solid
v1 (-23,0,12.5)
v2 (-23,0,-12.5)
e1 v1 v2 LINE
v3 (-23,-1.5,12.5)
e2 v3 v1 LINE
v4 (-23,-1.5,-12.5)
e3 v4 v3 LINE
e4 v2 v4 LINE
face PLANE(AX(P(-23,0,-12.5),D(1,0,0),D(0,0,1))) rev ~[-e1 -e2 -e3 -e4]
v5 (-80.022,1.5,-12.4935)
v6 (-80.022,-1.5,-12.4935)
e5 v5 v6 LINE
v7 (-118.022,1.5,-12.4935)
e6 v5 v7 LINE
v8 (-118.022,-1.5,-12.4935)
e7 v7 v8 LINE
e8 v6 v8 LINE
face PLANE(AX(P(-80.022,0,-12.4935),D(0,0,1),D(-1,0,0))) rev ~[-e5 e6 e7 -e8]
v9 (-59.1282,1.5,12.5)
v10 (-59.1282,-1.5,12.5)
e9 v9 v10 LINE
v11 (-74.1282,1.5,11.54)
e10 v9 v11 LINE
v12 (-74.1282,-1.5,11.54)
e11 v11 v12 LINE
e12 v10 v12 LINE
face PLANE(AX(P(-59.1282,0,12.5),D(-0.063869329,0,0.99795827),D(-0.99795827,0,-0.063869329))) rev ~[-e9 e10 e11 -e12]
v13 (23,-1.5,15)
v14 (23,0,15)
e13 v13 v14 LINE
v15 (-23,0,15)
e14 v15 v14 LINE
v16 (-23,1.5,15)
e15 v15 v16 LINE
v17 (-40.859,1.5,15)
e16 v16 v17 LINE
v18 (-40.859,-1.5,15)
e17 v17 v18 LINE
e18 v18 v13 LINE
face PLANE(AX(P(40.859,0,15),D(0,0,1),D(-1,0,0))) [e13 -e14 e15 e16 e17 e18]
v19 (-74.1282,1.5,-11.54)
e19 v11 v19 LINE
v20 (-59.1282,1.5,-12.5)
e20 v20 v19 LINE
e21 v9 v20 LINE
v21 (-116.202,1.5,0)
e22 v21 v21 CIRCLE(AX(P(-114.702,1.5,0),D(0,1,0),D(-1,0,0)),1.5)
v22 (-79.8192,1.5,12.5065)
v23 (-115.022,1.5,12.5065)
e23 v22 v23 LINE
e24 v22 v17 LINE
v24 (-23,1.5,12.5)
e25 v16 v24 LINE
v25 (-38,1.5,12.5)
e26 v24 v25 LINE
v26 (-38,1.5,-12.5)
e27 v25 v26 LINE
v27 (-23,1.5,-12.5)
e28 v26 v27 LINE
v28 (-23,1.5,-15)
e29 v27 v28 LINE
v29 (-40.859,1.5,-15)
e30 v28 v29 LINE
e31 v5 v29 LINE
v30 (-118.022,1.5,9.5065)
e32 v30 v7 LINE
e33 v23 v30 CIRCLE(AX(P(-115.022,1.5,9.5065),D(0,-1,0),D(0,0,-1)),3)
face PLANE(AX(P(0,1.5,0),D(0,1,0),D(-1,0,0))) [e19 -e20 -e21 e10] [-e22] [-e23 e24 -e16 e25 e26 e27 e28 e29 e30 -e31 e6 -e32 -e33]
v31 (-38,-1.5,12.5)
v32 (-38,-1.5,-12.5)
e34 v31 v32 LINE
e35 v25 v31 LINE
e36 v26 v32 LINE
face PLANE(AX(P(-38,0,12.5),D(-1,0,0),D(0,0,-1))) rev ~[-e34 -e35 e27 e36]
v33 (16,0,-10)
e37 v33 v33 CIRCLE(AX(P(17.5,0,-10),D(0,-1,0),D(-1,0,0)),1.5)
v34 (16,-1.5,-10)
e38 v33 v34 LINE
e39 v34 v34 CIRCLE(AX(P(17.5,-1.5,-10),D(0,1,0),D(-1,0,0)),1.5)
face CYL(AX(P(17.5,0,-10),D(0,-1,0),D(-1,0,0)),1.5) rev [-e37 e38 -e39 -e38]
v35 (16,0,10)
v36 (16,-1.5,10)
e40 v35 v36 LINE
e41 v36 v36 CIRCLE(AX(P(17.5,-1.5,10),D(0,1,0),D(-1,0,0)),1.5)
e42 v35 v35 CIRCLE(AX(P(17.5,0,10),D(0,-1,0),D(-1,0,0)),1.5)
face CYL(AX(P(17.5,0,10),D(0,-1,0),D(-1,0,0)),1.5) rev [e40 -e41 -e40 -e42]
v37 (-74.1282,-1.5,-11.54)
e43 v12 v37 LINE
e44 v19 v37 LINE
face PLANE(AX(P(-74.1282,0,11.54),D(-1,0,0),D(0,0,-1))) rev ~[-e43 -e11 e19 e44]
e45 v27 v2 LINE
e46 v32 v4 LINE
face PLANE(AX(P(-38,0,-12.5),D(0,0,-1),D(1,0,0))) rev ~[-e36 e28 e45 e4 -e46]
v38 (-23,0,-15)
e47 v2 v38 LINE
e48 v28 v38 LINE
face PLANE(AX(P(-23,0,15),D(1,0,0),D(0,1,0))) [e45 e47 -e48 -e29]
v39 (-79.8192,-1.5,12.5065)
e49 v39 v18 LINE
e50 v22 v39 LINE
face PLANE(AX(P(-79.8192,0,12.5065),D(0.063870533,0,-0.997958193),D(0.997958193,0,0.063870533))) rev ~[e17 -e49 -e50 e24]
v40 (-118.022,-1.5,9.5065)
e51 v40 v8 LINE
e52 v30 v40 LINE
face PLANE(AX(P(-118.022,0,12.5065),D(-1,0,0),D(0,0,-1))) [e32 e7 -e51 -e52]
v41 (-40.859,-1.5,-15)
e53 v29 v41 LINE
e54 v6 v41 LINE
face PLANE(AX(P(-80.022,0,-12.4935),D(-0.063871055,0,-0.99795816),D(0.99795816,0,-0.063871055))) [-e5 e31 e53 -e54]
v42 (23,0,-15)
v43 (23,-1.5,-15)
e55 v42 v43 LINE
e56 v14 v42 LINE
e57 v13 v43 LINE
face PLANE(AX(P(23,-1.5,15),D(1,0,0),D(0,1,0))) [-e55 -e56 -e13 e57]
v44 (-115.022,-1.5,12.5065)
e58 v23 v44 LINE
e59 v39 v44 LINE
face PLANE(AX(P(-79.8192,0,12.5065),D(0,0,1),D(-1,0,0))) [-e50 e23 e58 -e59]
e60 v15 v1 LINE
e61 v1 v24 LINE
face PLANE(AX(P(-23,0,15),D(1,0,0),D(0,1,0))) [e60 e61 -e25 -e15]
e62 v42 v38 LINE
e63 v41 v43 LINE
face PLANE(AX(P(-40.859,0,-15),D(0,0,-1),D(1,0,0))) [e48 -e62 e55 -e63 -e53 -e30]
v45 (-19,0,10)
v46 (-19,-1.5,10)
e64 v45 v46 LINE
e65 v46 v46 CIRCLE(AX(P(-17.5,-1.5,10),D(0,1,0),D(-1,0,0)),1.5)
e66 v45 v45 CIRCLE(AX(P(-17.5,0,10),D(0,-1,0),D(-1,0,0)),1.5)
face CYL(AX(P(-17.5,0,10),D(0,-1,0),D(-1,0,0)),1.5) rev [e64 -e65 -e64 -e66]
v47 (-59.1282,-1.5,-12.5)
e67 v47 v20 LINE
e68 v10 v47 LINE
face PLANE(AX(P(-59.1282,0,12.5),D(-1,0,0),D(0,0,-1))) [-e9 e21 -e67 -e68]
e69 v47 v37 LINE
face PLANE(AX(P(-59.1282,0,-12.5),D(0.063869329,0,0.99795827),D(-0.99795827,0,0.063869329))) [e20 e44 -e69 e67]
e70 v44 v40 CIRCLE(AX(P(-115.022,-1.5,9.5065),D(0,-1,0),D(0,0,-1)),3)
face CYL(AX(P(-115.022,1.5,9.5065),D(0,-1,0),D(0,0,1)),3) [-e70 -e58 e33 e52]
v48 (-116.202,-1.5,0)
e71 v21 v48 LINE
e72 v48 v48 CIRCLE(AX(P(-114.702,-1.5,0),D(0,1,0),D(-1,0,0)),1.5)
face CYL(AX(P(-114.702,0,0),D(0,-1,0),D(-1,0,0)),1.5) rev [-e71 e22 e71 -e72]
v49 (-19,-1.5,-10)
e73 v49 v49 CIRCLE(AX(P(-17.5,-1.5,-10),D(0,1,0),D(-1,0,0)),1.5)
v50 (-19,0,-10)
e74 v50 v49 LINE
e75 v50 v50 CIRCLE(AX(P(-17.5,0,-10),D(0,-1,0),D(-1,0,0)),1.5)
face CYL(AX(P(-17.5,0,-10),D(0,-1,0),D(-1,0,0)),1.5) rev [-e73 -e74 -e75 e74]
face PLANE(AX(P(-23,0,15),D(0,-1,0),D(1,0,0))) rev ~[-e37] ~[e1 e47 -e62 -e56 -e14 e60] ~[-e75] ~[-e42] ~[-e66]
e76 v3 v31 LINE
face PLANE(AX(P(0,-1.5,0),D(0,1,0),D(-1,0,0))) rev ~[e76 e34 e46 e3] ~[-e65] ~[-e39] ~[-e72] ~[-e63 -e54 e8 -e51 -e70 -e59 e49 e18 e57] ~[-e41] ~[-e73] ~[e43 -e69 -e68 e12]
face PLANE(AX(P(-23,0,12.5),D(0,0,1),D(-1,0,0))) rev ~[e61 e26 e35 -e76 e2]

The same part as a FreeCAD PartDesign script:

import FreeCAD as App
import Part
import Sketcher
from FreeCAD import Vector


def edges_at(feature, points):
    """Names of the edges that pass closest to the given points."""
    edges = feature.Shape.Edges
    near = lambda p: min(range(len(edges)), key=lambda i: edges[i].distToShape(Part.Vertex(*p))[0])
    return sorted({f"Edge{near(p) + 1}" for p in points})

doc = App.newDocument("Part")
body = doc.addObject("PartDesign::Body", "Body")

sketch1 = body.newObject("Sketcher::SketchObject", "Sketch")
sketch1.AttachmentSupport = (doc.getObject("XZ_Plane"), [""])
sketch1.MapMode = "FlatFace"
sketch1.addGeometry([
    Part.LineSegment(Vector(40.859, 15, 0), Vector(79.8192, 12.5065, 0)),
    Part.LineSegment(Vector(79.8192, 12.5065, 0), Vector(118.022, 12.5065, 0)),
    Part.LineSegment(Vector(118.022, 12.5065, 0), Vector(118.022, -12.4935, 0)),
    Part.LineSegment(Vector(118.022, -12.4935, 0), Vector(80.022, -12.4935, 0)),
    Part.LineSegment(Vector(80.022, -12.4935, 0), Vector(40.859, -15, 0)),
    Part.LineSegment(Vector(40.859, -15, 0), Vector(-40.859, -15, 0)),
    Part.LineSegment(Vector(-40.859, -15, 0), Vector(-80.022, -12.4935, 0)),
    Part.LineSegment(Vector(-80.022, -12.4935, 0), Vector(-118.022, -12.4935, 0)),
    Part.LineSegment(Vector(-118.022, -12.4935, 0), Vector(-118.022, 12.5065, 0)),
    Part.LineSegment(Vector(-118.022, 12.5065, 0), Vector(-79.8192, 12.5065, 0)),
    Part.LineSegment(Vector(-79.8192, 12.5065, 0), Vector(-40.859, 15, 0)),
    Part.LineSegment(Vector(-40.859, 15, 0), Vector(40.859, 15, 0)),
    Part.Circle(Vector(17.5, -10, 0), Vector(0, 0, 1), 1.5),
    Part.Circle(Vector(-17.5, -10, 0), Vector(0, 0, 1), 1.5),
    Part.Circle(Vector(114.702, 0, 0), Vector(0, 0, 1), 1.5),
    Part.LineSegment(Vector(59.1282, 12.5, 0), Vector(59.1282, -12.5, 0)),
    Part.LineSegment(Vector(59.1282, -12.5, 0), Vector(74.1282, -11.54, 0)),
    Part.LineSegment(Vector(74.1282, -11.54, 0), Vector(74.1282, 11.54, 0)),
    Part.LineSegment(Vector(74.1282, 11.54, 0), Vector(59.1282, 12.5, 0)),
    Part.LineSegment(Vector(38, 12.5, 0), Vector(23, 12.5, 0)),
    Part.LineSegment(Vector(23, 12.5, 0), Vector(23, -12.5, 0)),
    Part.LineSegment(Vector(23, -12.5, 0), Vector(38, -12.5, 0)),
    Part.LineSegment(Vector(38, -12.5, 0), Vector(38, 12.5, 0)),
    Part.Circle(Vector(17.5, 10, 0), Vector(0, 0, 1), 1.5),
    Part.LineSegment(Vector(-23, -12.5, 0), Vector(-23, 12.5, 0)),
    Part.LineSegment(Vector(-23, 12.5, 0), Vector(-38, 12.5, 0)),
    Part.LineSegment(Vector(-38, 12.5, 0), Vector(-38, -12.5, 0)),
    Part.LineSegment(Vector(-38, -12.5, 0), Vector(-23, -12.5, 0)),
    Part.LineSegment(Vector(-74.1282, -11.54, 0), Vector(-59.1282, -12.5, 0)),
    Part.LineSegment(Vector(-59.1282, -12.5, 0), Vector(-59.1282, 12.5, 0)),
    Part.LineSegment(Vector(-59.1282, 12.5, 0), Vector(-74.1282, 11.54, 0)),
    Part.LineSegment(Vector(-74.1282, 11.54, 0), Vector(-74.1282, -11.54, 0)),
    Part.Circle(Vector(-114.702, 0, 0), Vector(0, 0, 1), 1.5),
    Part.Circle(Vector(-17.5, 10, 0), Vector(0, 0, 1), 1.5),
], False)
sketch1.addConstraint([
    Sketcher.Constraint("Coincident", 0, 2, 1, 1),
    Sketcher.Constraint("Coincident", 1, 2, 2, 1),
    Sketcher.Constraint("Coincident", 2, 2, 3, 1),
    Sketcher.Constraint("Coincident", 3, 2, 4, 1),
    Sketcher.Constraint("Coincident", 4, 2, 5, 1),
    Sketcher.Constraint("Coincident", 5, 2, 6, 1),
    Sketcher.Constraint("Coincident", 6, 2, 7, 1),
    Sketcher.Constraint("Coincident", 7, 2, 8, 1),
    Sketcher.Constraint("Coincident", 8, 2, 9, 1),
    Sketcher.Constraint("Coincident", 9, 2, 10, 1),
    Sketcher.Constraint("Coincident", 10, 2, 11, 1),
    Sketcher.Constraint("Coincident", 11, 2, 0, 1),
    Sketcher.Constraint("Coincident", 15, 2, 16, 1),
    Sketcher.Constraint("Coincident", 16, 2, 17, 1),
    Sketcher.Constraint("Coincident", 17, 2, 18, 1),
    Sketcher.Constraint("Coincident", 18, 2, 15, 1),
    Sketcher.Constraint("Coincident", 19, 2, 20, 1),
    Sketcher.Constraint("Coincident", 20, 2, 21, 1),
    Sketcher.Constraint("Coincident", 21, 2, 22, 1),
    Sketcher.Constraint("Coincident", 22, 2, 19, 1),
    Sketcher.Constraint("Coincident", 24, 2, 25, 1),
    Sketcher.Constraint("Coincident", 25, 2, 26, 1),
    Sketcher.Constraint("Coincident", 26, 2, 27, 1),
    Sketcher.Constraint("Coincident", 27, 2, 24, 1),
    Sketcher.Constraint("Coincident", 28, 2, 29, 1),
    Sketcher.Constraint("Coincident", 29, 2, 30, 1),
    Sketcher.Constraint("Coincident", 30, 2, 31, 1),
    Sketcher.Constraint("Coincident", 31, 2, 28, 1),
    Sketcher.Constraint("Horizontal", 1),
    Sketcher.Constraint("Vertical", 2),
    Sketcher.Constraint("Horizontal", 3),
    Sketcher.Constraint("Horizontal", 5),
    Sketcher.Constraint("Horizontal", 7),
    Sketcher.Constraint("Vertical", 8),
    Sketcher.Constraint("Horizontal", 9),
    Sketcher.Constraint("Horizontal", 11),
    Sketcher.Constraint("Vertical", 15),
    Sketcher.Constraint("Vertical", 17),
    Sketcher.Constraint("Horizontal", 19),
    Sketcher.Constraint("Vertical", 20),
    Sketcher.Constraint("Horizontal", 21),
    Sketcher.Constraint("Vertical", 22),
    Sketcher.Constraint("Vertical", 24),
    Sketcher.Constraint("Horizontal", 25),
    Sketcher.Constraint("Vertical", 26),
    Sketcher.Constraint("Horizontal", 27),
    Sketcher.Constraint("Vertical", 29),
    Sketcher.Constraint("Vertical", 31),
    Sketcher.Constraint("Equal", 12, 13),
    Sketcher.Constraint("Equal", 13, 14),
    Sketcher.Constraint("Equal", 14, 23),
    Sketcher.Constraint("Equal", 23, 32),
    Sketcher.Constraint("Equal", 32, 33),
    Sketcher.Constraint("Symmetric", 13, 3, 23, 3, -1, 1),
    Sketcher.Constraint("Symmetric", 14, 3, 32, 3, -1, 1),
    Sketcher.Constraint("Symmetric", 12, 3, 33, 3, -1, 1),
    Sketcher.Constraint("Symmetric", 4, 2, 10, 2, -1, 1),
    Sketcher.Constraint("Symmetric", 20, 2, 24, 2, -1, 1),
    Sketcher.Constraint("Symmetric", 22, 2, 26, 2, -1, 1),
    Sketcher.Constraint("Symmetric", 18, 2, 28, 2, -1, 1),
    Sketcher.Constraint("Symmetric", 16, 2, 30, 2, -1, 1),
    Sketcher.Constraint("Symmetric", 12, 3, 13, 3, -2),
    Sketcher.Constraint("Symmetric", 3, 2, 6, 2, -2),
    Sketcher.Constraint("Symmetric", 1, 2, 8, 2, -2),
    Sketcher.Constraint("PointOnObject", 14, 3, -1),
    Sketcher.Constraint("Parallel", 0, 6),
    Sketcher.Constraint("Parallel", 4, 10),
    Sketcher.Constraint("Parallel", 10, 16),
    Sketcher.Constraint("Parallel", 6, 18),
    Sketcher.Constraint("Parallel", 18, 28),
    Sketcher.Constraint("Parallel", 16, 30),
    Sketcher.Constraint("Horizontal", 18, 2, 19, 2),
    Sketcher.Constraint("Horizontal", 15, 2, 20, 2),
    Sketcher.Constraint("Horizontal", 22, 2, 24, 2),
    Sketcher.Constraint("Horizontal", 17, 2, 30, 2),
    Sketcher.Constraint("Vertical", 4, 2, 11, 2),
    Sketcher.Constraint("Equal", 8, 15),
    Sketcher.Constraint("Diameter", 12, 3.0),
    Sketcher.Constraint("DistanceX", 3, 2, 3, 1, 38.0),
    Sketcher.Constraint("DistanceX", 19, 2, 19, 1, 15.0),
    Sketcher.Constraint("DistanceY", 2, 2, 2, 1, 25.0),
    Sketcher.Constraint("DistanceY", 4, 2, -1, 1, 15.0),
    Sketcher.Constraint("DistanceX", -1, 1, 19, 2, 23.0),
    Sketcher.Constraint("DistanceY", 4, 2, 12, 3, 5.0),
    Sketcher.Constraint("DistanceX", 15, 2, 16, 2, 15.0),
    Sketcher.Constraint("DistanceX", 23, 3, 19, 2, 5.5),
    Sketcher.Constraint("DistanceX", 14, 3, 1, 2, 3.32),
    Sketcher.Constraint("DistanceX", -1, 1, 4, 2, 40.859),
    Sketcher.Constraint("DistanceX", 4, 2, 3, 2, 39.163),
    Sketcher.Constraint("DistanceY", 17, 1, 17, 2, 23.08),
    Sketcher.Constraint("DistanceX", 16, 2, 3, 2, 5.8938),
])
pad1 = body.newObject("PartDesign::Pad", "Pad")
pad1.Profile = sketch1
pad1.Length = 3
pad1.Midplane = True
doc.recompute()

fillet = body.newObject("PartDesign::Fillet", "Fillet")
fillet.Base = (pad1, edges_at(pad1, [(-118.022, 0, 12.507), (118.022, 0, 12.507)]))
fillet.Radius = 3

sketch2 = body.newObject("Sketcher::SketchObject", "Sketch001")
sketch2.AttachmentSupport = (doc.getObject("XY_Plane"), [""])
sketch2.MapMode = "FlatFace"
sketch2.AttachmentOffset = App.Placement(Vector(0, 0, 15), App.Rotation())
sketch2.addGeometry([
    Part.LineSegment(Vector(-23, 1.5, 0), Vector(-23, 0, 0)),
    Part.LineSegment(Vector(-23, 0, 0), Vector(23, 0, 0)),
    Part.LineSegment(Vector(23, 0, 0), Vector(23, -1.5, 0)),
    Part.LineSegment(Vector(23, -1.5, 0), Vector(118.022, -1.5, 0)),
    Part.LineSegment(Vector(118.022, -1.5, 0), Vector(118.022, 1.5, 0)),
    Part.LineSegment(Vector(118.022, 1.5, 0), Vector(-23, 1.5, 0)),
], False)
sketch2.addConstraint([
    Sketcher.Constraint("Coincident", 0, 2, 1, 1),
    Sketcher.Constraint("Coincident", 1, 2, 2, 1),
    Sketcher.Constraint("Coincident", 2, 2, 3, 1),
    Sketcher.Constraint("Coincident", 3, 2, 4, 1),
    Sketcher.Constraint("Coincident", 4, 2, 5, 1),
    Sketcher.Constraint("Coincident", 5, 2, 0, 1),
    Sketcher.Constraint("Vertical", 0),
    Sketcher.Constraint("Horizontal", 1),
    Sketcher.Constraint("Vertical", 2),
    Sketcher.Constraint("Horizontal", 3),
    Sketcher.Constraint("Vertical", 4),
    Sketcher.Constraint("Horizontal", 5),
    Sketcher.Constraint("Symmetric", 0, 2, 1, 2, -1, 1),
    Sketcher.Constraint("Equal", 0, 2),
    Sketcher.Constraint("DistanceX", 1, 1, 1, 2, 46.0),
    Sketcher.Constraint("DistanceY", 4, 1, 4, 2, 3.0),
    Sketcher.Constraint("DistanceX", 3, 1, 3, 2, 95.022),
])
pocket1 = body.newObject("PartDesign::Pocket", "Pocket")
pocket1.Profile = sketch2
pocket1.Type = "ThroughAll"

doc.recompute()
